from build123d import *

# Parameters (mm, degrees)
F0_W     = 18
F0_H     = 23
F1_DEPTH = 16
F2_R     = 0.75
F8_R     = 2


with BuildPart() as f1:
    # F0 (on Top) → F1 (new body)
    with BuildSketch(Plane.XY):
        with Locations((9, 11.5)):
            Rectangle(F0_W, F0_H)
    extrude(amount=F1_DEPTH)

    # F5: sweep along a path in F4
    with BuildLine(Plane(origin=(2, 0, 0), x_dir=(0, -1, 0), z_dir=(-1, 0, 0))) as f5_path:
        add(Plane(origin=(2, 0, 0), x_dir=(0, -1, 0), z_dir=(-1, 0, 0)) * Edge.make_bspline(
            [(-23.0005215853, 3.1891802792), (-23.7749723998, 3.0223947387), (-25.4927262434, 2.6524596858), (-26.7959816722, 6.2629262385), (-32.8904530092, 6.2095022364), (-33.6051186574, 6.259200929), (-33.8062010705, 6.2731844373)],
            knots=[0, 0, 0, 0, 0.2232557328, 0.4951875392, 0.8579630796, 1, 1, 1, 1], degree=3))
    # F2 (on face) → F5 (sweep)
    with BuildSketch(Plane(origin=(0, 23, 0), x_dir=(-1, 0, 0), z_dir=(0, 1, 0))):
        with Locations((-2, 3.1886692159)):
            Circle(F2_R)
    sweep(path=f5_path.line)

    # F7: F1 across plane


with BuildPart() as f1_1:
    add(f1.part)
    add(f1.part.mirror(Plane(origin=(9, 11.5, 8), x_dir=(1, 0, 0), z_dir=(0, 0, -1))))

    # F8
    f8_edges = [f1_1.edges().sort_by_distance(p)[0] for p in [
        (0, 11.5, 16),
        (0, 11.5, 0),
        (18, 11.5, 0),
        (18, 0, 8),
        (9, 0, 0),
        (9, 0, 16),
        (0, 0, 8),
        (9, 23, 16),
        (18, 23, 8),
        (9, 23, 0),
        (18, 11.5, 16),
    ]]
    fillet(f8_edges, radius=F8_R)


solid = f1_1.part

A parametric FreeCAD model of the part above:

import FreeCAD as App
import Part
import Sketcher

V = App.Vector
Q = App.Units.Quantity


def edges_at(feature, points):
    """Names of the edges that pass closest to the given points."""
    edges = feature.Shape.Edges
    near = lambda p: min(range(len(edges)), key=lambda i: edges[i].distToShape(Part.Vertex(*p))[0])
    return sorted({f"Edge{near(p) + 1}" for p in points})

doc = App.newDocument("Part")
body = doc.addObject("PartDesign::Body", "Body")

# Sketch on XY plane
sketch1 = body.newObject("Sketcher::SketchObject", "Sketch")
sketch1.AttachmentSupport = (doc.getObject("XY_Plane"), [""])
sketch1.MapMode = "FlatFace"
sketch1.addGeometry([
    Part.LineSegment(V(0, 23, 0), V(0, 0, 0)),
    Part.LineSegment(V(0, 0, 0), V(18, 0, 0)),
    Part.LineSegment(V(18, 0, 0), V(18, 23, 0)),
    Part.LineSegment(V(18, 23, 0), V(0, 23, 0)),
], False)
sketch1.addConstraint([
    Sketcher.Constraint("Coincident", 0, 2, 1, 1),
    Sketcher.Constraint("Coincident", 1, 2, 2, 1),
    Sketcher.Constraint("Coincident", 2, 2, 3, 1),
    Sketcher.Constraint("Coincident", 3, 2, 0, 1),
    Sketcher.Constraint("Vertical", 0),
    Sketcher.Constraint("Horizontal", 1),
    Sketcher.Constraint("Vertical", 2),
    Sketcher.Constraint("Horizontal", 3),
    Sketcher.Constraint("Coincident", 0, 2, -1, 1),
    Sketcher.Constraint("DistanceX", 1, 1, 1, 2, Q("18 mm")),
    Sketcher.Constraint("DistanceY", 0, 2, 0, 1, Q("23 mm")),
])
pad1 = body.newObject("PartDesign::Pad", "Pad")
pad1.Profile = sketch1
pad1.Length = 16

# Sketch on XZ plane
sketch2 = body.newObject("Sketcher::SketchObject", "Sketch001")
sketch2.AttachmentSupport = (doc.getObject("XZ_Plane"), [""])
sketch2.MapMode = "FlatFace"
sketch2.AttachmentOffset = App.Placement(V(0, 0, -23), App.Rotation())
sketch2.addGeometry(Part.Circle(V(2, 3.2, 0), V(0, 0, 1), 0.8), False)
sketch2.addConstraint([
    Sketcher.Constraint("Diameter", 0, Q("1.5 mm")),
    Sketcher.Constraint("DistanceX", -1, 1, 0, 3, Q("2 mm")),
    Sketcher.Constraint("DistanceY", -1, 1, 0, 3, Q("3.188669 mm")),
])

# Sketch on YZ plane
sketch3 = body.newObject("Sketcher::SketchObject", "Sketch002")
sketch3.AttachmentSupport = (doc.getObject("YZ_Plane"), [""])
sketch3.MapMode = "FlatFace"
sketch3.AttachmentOffset = App.Placement(V(0, 0, 2), App.Rotation())
sketch3.addGeometry(Part.BSplineCurve([V(23.000522, 3.18918, 0), V(23.774972, 3.022395, 0), V(25.492726, 2.65246, 0), V(26.795982, 6.262926, 0), V(32.890453, 6.209502, 0), V(33.605119, 6.259201, 0), V(33.806201, 6.273184, 0)], [4, 1, 1, 1, 4], [0, 0.223255733, 0.495187539, 0.85796308, 1], False, 3, [1, 1, 1, 1, 1, 1, 1], False), False)
sketch3.addConstraint(Sketcher.Constraint("Block", 0))
doc.recompute()

additivepipe = body.newObject("PartDesign::AdditivePipe", "AdditivePipe")
additivepipe.Profile = sketch2
additivepipe.Spine = (sketch3, ["Edge1"])
body2 = doc.addObject("PartDesign::Body", "Body001")
doc.recompute()

body2.BaseFeature = body
doc.recompute()

mirroring = doc.addObject("Part::Mirroring", "Mirroring")
mirroring.Source = body
mirroring.Base = V(9, 11.5, 8)
mirroring.Normal = V(0, 0, -1)
body3 = doc.addObject("PartDesign::Body", "Body002")
body3.BaseFeature = mirroring
boolean = body2.newObject("PartDesign::Boolean", "Boolean")
boolean.Type = "Fuse"
boolean.addObjects([body3])
doc.recompute()

fillet = body2.newObject("PartDesign::Fillet", "Fillet")
fillet.Base = (boolean, edges_at(boolean, [
    (0, 11.5, 16),
    (0, 11.5, 0),
    (18, 11.5, 0),
    (18, 0, 8),
    (9, 0, 0),
    (9, 0, 16),
    (0, 0, 8),
    (9, 23, 16),
    (18, 23, 8),
    (9, 23, 0),
    (18, 11.5, 16),
]))
fillet.Radius = 2
mirroring.Visibility = False

doc.recompute()
